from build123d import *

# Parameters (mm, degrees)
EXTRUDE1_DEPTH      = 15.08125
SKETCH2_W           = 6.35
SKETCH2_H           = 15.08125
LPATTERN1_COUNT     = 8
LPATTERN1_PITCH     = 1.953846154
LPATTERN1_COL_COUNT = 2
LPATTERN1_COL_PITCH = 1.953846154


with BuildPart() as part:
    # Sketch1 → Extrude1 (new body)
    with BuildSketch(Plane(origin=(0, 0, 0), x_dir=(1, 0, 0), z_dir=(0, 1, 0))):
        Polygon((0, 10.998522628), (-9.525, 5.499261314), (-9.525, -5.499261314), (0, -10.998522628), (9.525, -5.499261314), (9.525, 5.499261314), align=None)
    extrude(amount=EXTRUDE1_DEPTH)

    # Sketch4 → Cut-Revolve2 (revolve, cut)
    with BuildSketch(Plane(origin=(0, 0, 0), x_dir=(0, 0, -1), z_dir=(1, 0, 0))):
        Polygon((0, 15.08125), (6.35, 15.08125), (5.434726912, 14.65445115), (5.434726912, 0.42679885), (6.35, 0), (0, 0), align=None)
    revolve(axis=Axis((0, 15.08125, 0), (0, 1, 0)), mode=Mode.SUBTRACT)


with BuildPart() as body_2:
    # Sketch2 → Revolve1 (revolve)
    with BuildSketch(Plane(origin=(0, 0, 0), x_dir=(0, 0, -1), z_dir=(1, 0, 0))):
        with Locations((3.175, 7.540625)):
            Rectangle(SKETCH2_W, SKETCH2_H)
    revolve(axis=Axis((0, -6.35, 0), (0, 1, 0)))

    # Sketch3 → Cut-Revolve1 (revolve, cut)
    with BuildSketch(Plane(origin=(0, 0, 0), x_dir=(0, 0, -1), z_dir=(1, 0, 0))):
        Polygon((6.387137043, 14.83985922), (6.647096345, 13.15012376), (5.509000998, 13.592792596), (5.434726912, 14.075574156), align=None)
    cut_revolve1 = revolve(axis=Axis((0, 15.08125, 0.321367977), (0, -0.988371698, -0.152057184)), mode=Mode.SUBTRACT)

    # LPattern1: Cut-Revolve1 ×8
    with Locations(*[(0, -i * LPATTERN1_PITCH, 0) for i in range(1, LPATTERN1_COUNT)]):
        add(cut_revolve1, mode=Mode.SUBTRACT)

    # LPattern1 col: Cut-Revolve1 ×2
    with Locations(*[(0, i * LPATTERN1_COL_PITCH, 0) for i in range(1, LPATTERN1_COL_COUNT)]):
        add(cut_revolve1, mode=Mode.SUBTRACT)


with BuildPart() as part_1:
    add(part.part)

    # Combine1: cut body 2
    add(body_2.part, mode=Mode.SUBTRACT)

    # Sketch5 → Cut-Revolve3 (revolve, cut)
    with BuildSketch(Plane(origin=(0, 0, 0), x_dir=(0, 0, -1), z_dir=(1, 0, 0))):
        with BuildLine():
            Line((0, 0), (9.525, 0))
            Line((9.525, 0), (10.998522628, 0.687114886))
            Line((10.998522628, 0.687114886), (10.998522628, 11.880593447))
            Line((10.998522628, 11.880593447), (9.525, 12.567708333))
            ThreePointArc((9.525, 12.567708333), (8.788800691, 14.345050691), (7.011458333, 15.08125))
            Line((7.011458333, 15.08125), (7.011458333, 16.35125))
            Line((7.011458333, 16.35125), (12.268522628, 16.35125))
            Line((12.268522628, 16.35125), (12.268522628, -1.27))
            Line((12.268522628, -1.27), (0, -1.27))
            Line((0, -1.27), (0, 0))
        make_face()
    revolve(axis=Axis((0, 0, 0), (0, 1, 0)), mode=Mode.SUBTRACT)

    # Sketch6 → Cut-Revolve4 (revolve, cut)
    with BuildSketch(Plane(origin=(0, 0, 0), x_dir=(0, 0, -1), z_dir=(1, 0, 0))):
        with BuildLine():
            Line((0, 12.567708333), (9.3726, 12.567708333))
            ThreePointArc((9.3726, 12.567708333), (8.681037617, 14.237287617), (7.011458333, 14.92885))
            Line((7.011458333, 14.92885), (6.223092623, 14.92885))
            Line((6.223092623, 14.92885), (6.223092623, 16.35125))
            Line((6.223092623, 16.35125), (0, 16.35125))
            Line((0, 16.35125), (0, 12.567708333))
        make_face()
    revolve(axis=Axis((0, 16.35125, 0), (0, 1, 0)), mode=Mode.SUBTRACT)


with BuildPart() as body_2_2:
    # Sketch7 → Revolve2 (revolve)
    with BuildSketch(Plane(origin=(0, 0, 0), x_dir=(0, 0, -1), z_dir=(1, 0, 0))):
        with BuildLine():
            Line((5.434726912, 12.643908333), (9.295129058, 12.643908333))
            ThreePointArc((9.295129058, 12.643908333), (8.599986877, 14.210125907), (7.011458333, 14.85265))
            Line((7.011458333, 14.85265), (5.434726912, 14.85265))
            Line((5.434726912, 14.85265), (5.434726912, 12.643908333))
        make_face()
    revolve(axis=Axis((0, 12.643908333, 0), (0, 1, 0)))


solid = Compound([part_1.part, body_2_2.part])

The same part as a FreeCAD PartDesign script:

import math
import FreeCAD as App
import Part
import Sketcher
Q = App.Units.Quantity

doc = App.newDocument("Part")
body = doc.addObject("PartDesign::Body", "Body")

# Sketch on XZ plane
sketch1 = body.newObject("Sketcher::SketchObject", "Sketch")
sketch1.AttachmentSupport = (doc.getObject("XZ_Plane"), [""])
sketch1.MapMode = "FlatFace"
sketch1.addGeometry([
    Part.LineSegment(App.Vector(0, -10.998523, 0), App.Vector(-9.525, -5.499261, 0)),  # 0
    Part.LineSegment(App.Vector(-9.525, -5.499261, 0), App.Vector(-9.525, 5.499261, 0)),  # 1
    Part.LineSegment(App.Vector(-9.525, 5.499261, 0), App.Vector(0, 10.998523, 0)),  # 2
    Part.LineSegment(App.Vector(0, 10.998523, 0), App.Vector(9.525, 5.499261, 0)),  # 3
    Part.LineSegment(App.Vector(9.525, 5.499261, 0), App.Vector(9.525, -5.499261, 0)),  # 4
    Part.LineSegment(App.Vector(9.525, -5.499261, 0), App.Vector(0, -10.998523, 0)),  # 5
], False)
sketch1.addConstraint([
    Sketcher.Constraint("Coincident", 0, 2, 1, 1),
    Sketcher.Constraint("Coincident", 1, 2, 2, 1),
    Sketcher.Constraint("Coincident", 2, 2, 3, 1),
    Sketcher.Constraint("Coincident", 3, 2, 4, 1),
    Sketcher.Constraint("Coincident", 4, 2, 5, 1),
    Sketcher.Constraint("Coincident", 5, 2, 0, 1),
    Sketcher.Constraint("Vertical", 1),
    Sketcher.Constraint("Vertical", 4),
    Sketcher.Constraint("Symmetric", 0, 2, 3, 2, -1, 1),
    Sketcher.Constraint("Symmetric", 2, 2, 5, 2, -1, 1),
    Sketcher.Constraint("PointOnObject", 2, 2, -2),
    Sketcher.Constraint("Parallel", 2, 5),
    Sketcher.Constraint("Horizontal", 1, 2, 3, 2),
    Sketcher.Constraint("Angle", 0, Q("150 deg")),
    Sketcher.Constraint("DistanceX", 1, 2, 3, 2, Q("0.75 in")),
    Sketcher.Constraint("DistanceY", 1, 1, 1, 2, Q("10.998523 mm")),
])
pad1 = body.newObject("PartDesign::Pad", "Pad")
pad1.Profile = sketch1
pad1.Length = Q("0.59375 in")
pad1.Reversed = True

# Sketch on YZ plane
sketch2 = body.newObject("Sketcher::SketchObject", "Sketch001")
sketch2.AttachmentSupport = (doc.getObject("YZ_Plane"), [""])
sketch2.MapMode = "FlatFace"
sketch2.addGeometry([
    Part.LineSegment(App.Vector(15.08125, -6.35, 0), App.Vector(15.08125, 0, 0)),  # 0
    Part.LineSegment(App.Vector(15.08125, 0, 0), App.Vector(0, 0, 0)),  # 1
    Part.LineSegment(App.Vector(0, 0, 0), App.Vector(0, -6.35, 0)),  # 2
    Part.LineSegment(App.Vector(0, -6.35, 0), App.Vector(0.426799, -5.434727, 0)),  # 3
    Part.LineSegment(App.Vector(0.426799, -5.434727, 0), App.Vector(14.654451, -5.434727, 0)),  # 4
    Part.LineSegment(App.Vector(14.654451, -5.434727, 0), App.Vector(15.08125, -6.35, 0)),  # 5
], False)
sketch2.addConstraint([
    Sketcher.Constraint("Coincident", 0, 2, 1, 1),
    Sketcher.Constraint("Coincident", 1, 2, 2, 1),
    Sketcher.Constraint("Coincident", 2, 2, 3, 1),
    Sketcher.Constraint("Coincident", 3, 2, 4, 1),
    Sketcher.Constraint("Coincident", 4, 2, 5, 1),
    Sketcher.Constraint("Coincident", 5, 2, 0, 1),
    Sketcher.Constraint("Vertical", 0),
    Sketcher.Constraint("Horizontal", 1),
    Sketcher.Constraint("Vertical", 2),
    Sketcher.Constraint("Horizontal", 4),
    Sketcher.Constraint("Coincident", 1, 2, -1, 1),
    Sketcher.Constraint("Horizontal", 2, 2, 5, 2),
    Sketcher.Constraint("Equal", 3, 5),
    Sketcher.Constraint("Angle", 3, Q("65 deg")),
    Sketcher.Constraint("DistanceY", 0, 1, 0, 2, Q("0.25 in")),
    Sketcher.Constraint("DistanceX", 1, 2, 1, 1, Q("0.59375 in")),
    Sketcher.Constraint("DistanceX", -1, 1, 3, 2, Q("0.426799 mm")),
])
groove = body.newObject("PartDesign::Groove", "Groove")
groove.Profile = sketch2
groove.ReferenceAxis = (sketch2, ["H_Axis"])
groove.Angle = 360
body2 = doc.addObject("PartDesign::Body", "Body001")

# Sketch on YZ plane
sketch3 = body2.newObject("Sketcher::SketchObject", "Sketch002")
sketch3.AttachmentSupport = (doc.getObject("YZ_Plane001"), [""])
sketch3.MapMode = "FlatFace"
sketch3.addGeometry([
    Part.LineSegment(App.Vector(15.08125, 0, 0), App.Vector(0, 0, 0)),
    Part.LineSegment(App.Vector(0, 0, 0), App.Vector(0, -6.35, 0)),
    Part.LineSegment(App.Vector(0, -6.35, 0), App.Vector(15.08125, -6.35, 0)),
    Part.LineSegment(App.Vector(15.08125, -6.35, 0), App.Vector(15.08125, 0, 0)),
], False)
sketch3.addConstraint([
    Sketcher.Constraint("Coincident", 0, 2, 1, 1),
    Sketcher.Constraint("Coincident", 1, 2, 2, 1),
    Sketcher.Constraint("Coincident", 2, 2, 3, 1),
    Sketcher.Constraint("Coincident", 3, 2, 0, 1),
    Sketcher.Constraint("Horizontal", 0),
    Sketcher.Constraint("Vertical", 1),
    Sketcher.Constraint("Horizontal", 2),
    Sketcher.Constraint("Vertical", 3),
    Sketcher.Constraint("Coincident", 0, 2, -1, 1),
    Sketcher.Constraint("DistanceY", 1, 2, 1, 1, Q("0.25 in")),
    Sketcher.Constraint("DistanceX", 0, 2, 0, 1, Q("0.59375 in")),
])
revolution = body2.newObject("PartDesign::Revolution", "Revolution")
revolution.Profile = sketch3
revolution.ReferenceAxis = (sketch3, ["H_Axis"])
revolution.Angle = 360

# Sketch on YZ plane
sketch4 = body2.newObject("Sketcher::SketchObject", "Sketch003")
sketch4.AttachmentSupport = (doc.getObject("YZ_Plane001"), [""])
sketch4.MapMode = "FlatFace"
sketch4.addGeometry([
    Part.LineSegment(App.Vector(13.150124, -6.647096, 0), App.Vector(14.839859, -6.387137, 0)),
    Part.LineSegment(App.Vector(14.839859, -6.387137, 0), App.Vector(14.075574, -5.434727, 0)),
    Part.LineSegment(App.Vector(14.075574, -5.434727, 0), App.Vector(13.592793, -5.509001, 0)),
    Part.LineSegment(App.Vector(13.592793, -5.509001, 0), App.Vector(13.150124, -6.647096, 0)),
], False)
sketch4.addGeometry(Part.LineSegment(App.Vector(13.837226, 0.12998, 0), App.Vector(12.14749, -0.12998, 0)), True)  # axis
sketch4.addConstraint([
    Sketcher.Constraint("Coincident", 0, 2, 1, 1),
    Sketcher.Constraint("Coincident", 1, 2, 2, 1),
    Sketcher.Constraint("Coincident", 2, 2, 3, 1),
    Sketcher.Constraint("Coincident", 3, 2, 0, 1),
    Sketcher.Constraint("Parallel", 0, 2),
    Sketcher.Constraint("Parallel", 2, 4),
    Sketcher.Constraint("Equal", 1, 3),
    Sketcher.Constraint("Equal", 0, 4),
    Sketcher.Constraint("DistanceY", 2, 2, -1, 1, Q("5.509001 mm")),
    Sketcher.Constraint("Distance", 2, Q("0.488462 mm")),
    Sketcher.Constraint("DistanceX", -1, 1, 0, 2, Q("14.839859 mm")),
    Sketcher.Constraint("DistanceY", -1, 1, 4, 1, Q("0.12998 mm")),
    Sketcher.Constraint("DistanceX", -1, 1, 4, 2, Q("12.14749 mm")),
    Sketcher.Constraint("DistanceY", 4, 2, -1, 1, Q("0.12998 mm")),
    Sketcher.Constraint("DistanceY", 0, 2, 1, 2, Q("0.95241 mm")),
    Sketcher.Constraint("DistanceX", 2, 2, 1, 2, Q("0.482782 mm")),
])
groove2 = body2.newObject("PartDesign::Groove", "Groove001")
groove2.Profile = sketch4
groove2.ReferenceAxis = (sketch4, ["Axis0"])
groove2.Angle = 360
doc.recompute()

linearpattern = body2.newObject("PartDesign::LinearPattern", "LinearPattern")
linearpattern.Originals = [groove2]
linearpattern.Direction = (doc.getObject("Y_Axis001"), [""])
linearpattern.Mode = "offset"
linearpattern.Offset = 1.953846
linearpattern.Occurrences = 8
linearpattern.Reversed = True
body2.Tip = linearpattern
doc.recompute()

linearpattern2 = body2.newObject("PartDesign::LinearPattern", "LinearPattern001")
linearpattern2.Originals = [groove2]
linearpattern2.Direction = (doc.getObject("Y_Axis001"), [""])
linearpattern2.Mode = "offset"
linearpattern2.Offset = 1.953846
linearpattern2.Occurrences = 2
body2.Tip = linearpattern2
doc.recompute()

boolean = body.newObject("PartDesign::Boolean", "Boolean")
boolean.Type = "Cut"
boolean.addObjects([body2])

# Sketch on YZ plane
sketch5 = body.newObject("Sketcher::SketchObject", "Sketch004")
sketch5.AttachmentSupport = (doc.getObject("YZ_Plane"), [""])
sketch5.MapMode = "FlatFace"
sketch5.addGeometry([
    Part.LineSegment(App.Vector(0, -9.525, 0), App.Vector(0, 0, 0)),  # 0
    Part.LineSegment(App.Vector(0, 0, 0), App.Vector(-1.27, 0, 0)),  # 1
    Part.LineSegment(App.Vector(-1.27, 0, 0), App.Vector(-1.27, -12.268523, 0)),  # 2
    Part.LineSegment(App.Vector(-1.27, -12.268523, 0), App.Vector(16.35125, -12.268523, 0)),  # 3
    Part.LineSegment(App.Vector(16.35125, -12.268523, 0), App.Vector(16.35125, -7.011458, 0)),  # 4
    Part.LineSegment(App.Vector(16.35125, -7.011458, 0), App.Vector(15.08125, -7.011458, 0)),  # 5
    Part.ArcOfCircle(Part.Circle(App.Vector(12.567708, -7.011458, 0), App.Vector(0, 0, 1), 2.513542), math.radians(-90), math.radians(0)),  # 6
    Part.LineSegment(App.Vector(12.567708, -9.525, 0), App.Vector(11.880593, -10.998523, 0)),  # 7
    Part.LineSegment(App.Vector(11.880593, -10.998523, 0), App.Vector(0.687115, -10.998523, 0)),  # 8
    Part.LineSegment(App.Vector(0.687115, -10.998523, 0), App.Vector(0, -9.525, 0)),  # 9
], False)
sketch5.addConstraint([
    Sketcher.Constraint("Coincident", 0, 2, 1, 1),
    Sketcher.Constraint("Coincident", 1, 2, 2, 1),
    Sketcher.Constraint("Coincident", 2, 2, 3, 1),
    Sketcher.Constraint("Coincident", 3, 2, 4, 1),
    Sketcher.Constraint("Coincident", 4, 2, 5, 1),
    Sketcher.Constraint("Coincident", 5, 2, 6, 2),
    Sketcher.Constraint("Coincident", 6, 1, 7, 1),
    Sketcher.Constraint("Coincident", 7, 2, 8, 1),
    Sketcher.Constraint("Coincident", 8, 2, 9, 1),
    Sketcher.Constraint("Coincident", 9, 2, 0, 1),
    Sketcher.Constraint("Vertical", 0),
    Sketcher.Constraint("Horizontal", 1),
    Sketcher.Constraint("Vertical", 2),
    Sketcher.Constraint("Horizontal", 3),
    Sketcher.Constraint("Vertical", 4),
    Sketcher.Constraint("Horizontal", 5),
    Sketcher.Constraint("Horizontal", 8),
    Sketcher.Constraint("Coincident", 0, 2, -1, 1),
    Sketcher.Constraint("Horizontal", 6, 3, 4, 2),
    Sketcher.Constraint("Horizontal", 6, 1, 9, 2),
    Sketcher.Constraint("Equal", 1, 5),
    Sketcher.Constraint("Equal", 7, 9),
    Sketcher.Constraint("Angle", 7, Q("-115 deg")),
    Sketcher.Constraint("DistanceX", 1, 2, 1, 1, Q("0.05 in")),
    Sketcher.Constraint("DistanceY", 0, 1, 0, 2, Q("0.375 in")),
    Sketcher.Constraint("DistanceY", 3, 2, 7, 2, Q("0.05 in")),
    Sketcher.Constraint("DistanceX", -1, 1, 5, 2, Q("0.59375 in")),
    Sketcher.Constraint("Radius", 6, Q("2.513542 mm")),
    Sketcher.Constraint("DistanceX", 8, 2, 8, 1, Q("11.193479 mm")),
    Sketcher.Constraint("DistanceY", 2, 2, 2, 1, Q("12.268523 mm")),
])
groove3 = body.newObject("PartDesign::Groove", "Groove002")
groove3.Profile = sketch5
groove3.ReferenceAxis = (sketch5, ["H_Axis"])
groove3.Angle = 360

# Sketch on YZ plane
sketch6 = body.newObject("Sketcher::SketchObject", "Sketch005")
sketch6.AttachmentSupport = (doc.getObject("YZ_Plane"), [""])
sketch6.MapMode = "FlatFace"
sketch6.addGeometry([
    Part.LineSegment(App.Vector(12.567708, 0, 0), App.Vector(12.567708, -9.3726, 0)),  # 0
    Part.ArcOfCircle(Part.Circle(App.Vector(12.567708, -7.011458, 0), App.Vector(0, 0, 1), 2.361142), math.radians(-90), math.radians(0)),  # 1
    Part.LineSegment(App.Vector(14.92885, -7.011458, 0), App.Vector(14.92885, -6.223093, 0)),  # 2
    Part.LineSegment(App.Vector(14.92885, -6.223093, 0), App.Vector(16.35125, -6.223093, 0)),  # 3
    Part.LineSegment(App.Vector(16.35125, -6.223093, 0), App.Vector(16.35125, 0, 0)),  # 4
    Part.LineSegment(App.Vector(16.35125, 0, 0), App.Vector(12.567708, 0, 0)),  # 5
], False)
sketch6.addConstraint([
    Sketcher.Constraint("Coincident", 0, 2, 1, 1),
    Sketcher.Constraint("Tangent", 1, 2, 2, 1),
    Sketcher.Constraint("Coincident", 2, 2, 3, 1),
    Sketcher.Constraint("Coincident", 3, 2, 4, 1),
    Sketcher.Constraint("Coincident", 4, 2, 5, 1),
    Sketcher.Constraint("Coincident", 5, 2, 0, 1),
    Sketcher.Constraint("Vertical", 0),
    Sketcher.Constraint("Vertical", 2),
    Sketcher.Constraint("Horizontal", 3),
    Sketcher.Constraint("Vertical", 4),
    Sketcher.Constraint("Horizontal", 5),
    Sketcher.Constraint("PointOnObject", 4, 2, -1),
    Sketcher.Constraint("Vertical", 1, 3, 0, 2),
    Sketcher.Constraint("DistanceX", 3, 1, 3, 2, Q("0.056 in")),
    Sketcher.Constraint("DistanceY", 0, 2, 0, 1, Q("0.369 in")),
    Sketcher.Constraint("Radius", 1, Q("2.361142 mm")),
    Sketcher.Constraint("DistanceY", 2, 1, 2, 2, Q("0.788366 mm")),
    Sketcher.Constraint("DistanceX", -1, 1, 1, 3, Q("12.567708 mm")),
])
groove4 = body.newObject("PartDesign::Groove", "Groove003")
groove4.Profile = sketch6
groove4.ReferenceAxis = (sketch6, ["H_Axis"])
groove4.Angle = 360
body3 = doc.addObject("PartDesign::Body", "Body002")

# Sketch on YZ plane
sketch7 = body3.newObject("Sketcher::SketchObject", "Sketch006")
sketch7.AttachmentSupport = (doc.getObject("YZ_Plane002"), [""])
sketch7.MapMode = "FlatFace"
sketch7.addGeometry([
    Part.LineSegment(App.Vector(12.643908, -5.434727, 0), App.Vector(12.643908, -9.295129, 0)),
    Part.ArcOfCircle(Part.Circle(App.Vector(12.567708, -7.011458, 0), App.Vector(0, 0, 1), 2.284942), math.radians(-88.088902), math.radians(0)),
    Part.LineSegment(App.Vector(14.85265, -7.011458, 0), App.Vector(14.85265, -5.434727, 0)),
    Part.LineSegment(App.Vector(14.85265, -5.434727, 0), App.Vector(12.643908, -5.434727, 0)),
], False)
sketch7.addConstraint([
    Sketcher.Constraint("Coincident", 0, 2, 1, 1),
    Sketcher.Constraint("Tangent", 1, 2, 2, 1),
    Sketcher.Constraint("Coincident", 2, 2, 3, 1),
    Sketcher.Constraint("Coincident", 3, 2, 0, 1),
    Sketcher.Constraint("Vertical", 0),
    Sketcher.Constraint("Vertical", 2),
    Sketcher.Constraint("Horizontal", 3),
    Sketcher.Constraint("Radius", 1, Q("2.284942 mm")),
    Sketcher.Constraint("DistanceX", 1, 3, 0, 2, Q("0.003 in")),
    Sketcher.Constraint("DistanceY", 2, 1, 2, 2, Q("1.576731 mm")),
    Sketcher.Constraint("DistanceX", -1, 1, 1, 3, Q("12.567708 mm")),
    Sketcher.Constraint("DistanceY", 1, 3, -1, 1, Q("7.011458 mm")),
])
revolution2 = body3.newObject("PartDesign::Revolution", "Revolution001")
revolution2.Profile = sketch7
revolution2.ReferenceAxis = (sketch7, ["H_Axis"])
revolution2.Angle = 360

doc.recompute()
